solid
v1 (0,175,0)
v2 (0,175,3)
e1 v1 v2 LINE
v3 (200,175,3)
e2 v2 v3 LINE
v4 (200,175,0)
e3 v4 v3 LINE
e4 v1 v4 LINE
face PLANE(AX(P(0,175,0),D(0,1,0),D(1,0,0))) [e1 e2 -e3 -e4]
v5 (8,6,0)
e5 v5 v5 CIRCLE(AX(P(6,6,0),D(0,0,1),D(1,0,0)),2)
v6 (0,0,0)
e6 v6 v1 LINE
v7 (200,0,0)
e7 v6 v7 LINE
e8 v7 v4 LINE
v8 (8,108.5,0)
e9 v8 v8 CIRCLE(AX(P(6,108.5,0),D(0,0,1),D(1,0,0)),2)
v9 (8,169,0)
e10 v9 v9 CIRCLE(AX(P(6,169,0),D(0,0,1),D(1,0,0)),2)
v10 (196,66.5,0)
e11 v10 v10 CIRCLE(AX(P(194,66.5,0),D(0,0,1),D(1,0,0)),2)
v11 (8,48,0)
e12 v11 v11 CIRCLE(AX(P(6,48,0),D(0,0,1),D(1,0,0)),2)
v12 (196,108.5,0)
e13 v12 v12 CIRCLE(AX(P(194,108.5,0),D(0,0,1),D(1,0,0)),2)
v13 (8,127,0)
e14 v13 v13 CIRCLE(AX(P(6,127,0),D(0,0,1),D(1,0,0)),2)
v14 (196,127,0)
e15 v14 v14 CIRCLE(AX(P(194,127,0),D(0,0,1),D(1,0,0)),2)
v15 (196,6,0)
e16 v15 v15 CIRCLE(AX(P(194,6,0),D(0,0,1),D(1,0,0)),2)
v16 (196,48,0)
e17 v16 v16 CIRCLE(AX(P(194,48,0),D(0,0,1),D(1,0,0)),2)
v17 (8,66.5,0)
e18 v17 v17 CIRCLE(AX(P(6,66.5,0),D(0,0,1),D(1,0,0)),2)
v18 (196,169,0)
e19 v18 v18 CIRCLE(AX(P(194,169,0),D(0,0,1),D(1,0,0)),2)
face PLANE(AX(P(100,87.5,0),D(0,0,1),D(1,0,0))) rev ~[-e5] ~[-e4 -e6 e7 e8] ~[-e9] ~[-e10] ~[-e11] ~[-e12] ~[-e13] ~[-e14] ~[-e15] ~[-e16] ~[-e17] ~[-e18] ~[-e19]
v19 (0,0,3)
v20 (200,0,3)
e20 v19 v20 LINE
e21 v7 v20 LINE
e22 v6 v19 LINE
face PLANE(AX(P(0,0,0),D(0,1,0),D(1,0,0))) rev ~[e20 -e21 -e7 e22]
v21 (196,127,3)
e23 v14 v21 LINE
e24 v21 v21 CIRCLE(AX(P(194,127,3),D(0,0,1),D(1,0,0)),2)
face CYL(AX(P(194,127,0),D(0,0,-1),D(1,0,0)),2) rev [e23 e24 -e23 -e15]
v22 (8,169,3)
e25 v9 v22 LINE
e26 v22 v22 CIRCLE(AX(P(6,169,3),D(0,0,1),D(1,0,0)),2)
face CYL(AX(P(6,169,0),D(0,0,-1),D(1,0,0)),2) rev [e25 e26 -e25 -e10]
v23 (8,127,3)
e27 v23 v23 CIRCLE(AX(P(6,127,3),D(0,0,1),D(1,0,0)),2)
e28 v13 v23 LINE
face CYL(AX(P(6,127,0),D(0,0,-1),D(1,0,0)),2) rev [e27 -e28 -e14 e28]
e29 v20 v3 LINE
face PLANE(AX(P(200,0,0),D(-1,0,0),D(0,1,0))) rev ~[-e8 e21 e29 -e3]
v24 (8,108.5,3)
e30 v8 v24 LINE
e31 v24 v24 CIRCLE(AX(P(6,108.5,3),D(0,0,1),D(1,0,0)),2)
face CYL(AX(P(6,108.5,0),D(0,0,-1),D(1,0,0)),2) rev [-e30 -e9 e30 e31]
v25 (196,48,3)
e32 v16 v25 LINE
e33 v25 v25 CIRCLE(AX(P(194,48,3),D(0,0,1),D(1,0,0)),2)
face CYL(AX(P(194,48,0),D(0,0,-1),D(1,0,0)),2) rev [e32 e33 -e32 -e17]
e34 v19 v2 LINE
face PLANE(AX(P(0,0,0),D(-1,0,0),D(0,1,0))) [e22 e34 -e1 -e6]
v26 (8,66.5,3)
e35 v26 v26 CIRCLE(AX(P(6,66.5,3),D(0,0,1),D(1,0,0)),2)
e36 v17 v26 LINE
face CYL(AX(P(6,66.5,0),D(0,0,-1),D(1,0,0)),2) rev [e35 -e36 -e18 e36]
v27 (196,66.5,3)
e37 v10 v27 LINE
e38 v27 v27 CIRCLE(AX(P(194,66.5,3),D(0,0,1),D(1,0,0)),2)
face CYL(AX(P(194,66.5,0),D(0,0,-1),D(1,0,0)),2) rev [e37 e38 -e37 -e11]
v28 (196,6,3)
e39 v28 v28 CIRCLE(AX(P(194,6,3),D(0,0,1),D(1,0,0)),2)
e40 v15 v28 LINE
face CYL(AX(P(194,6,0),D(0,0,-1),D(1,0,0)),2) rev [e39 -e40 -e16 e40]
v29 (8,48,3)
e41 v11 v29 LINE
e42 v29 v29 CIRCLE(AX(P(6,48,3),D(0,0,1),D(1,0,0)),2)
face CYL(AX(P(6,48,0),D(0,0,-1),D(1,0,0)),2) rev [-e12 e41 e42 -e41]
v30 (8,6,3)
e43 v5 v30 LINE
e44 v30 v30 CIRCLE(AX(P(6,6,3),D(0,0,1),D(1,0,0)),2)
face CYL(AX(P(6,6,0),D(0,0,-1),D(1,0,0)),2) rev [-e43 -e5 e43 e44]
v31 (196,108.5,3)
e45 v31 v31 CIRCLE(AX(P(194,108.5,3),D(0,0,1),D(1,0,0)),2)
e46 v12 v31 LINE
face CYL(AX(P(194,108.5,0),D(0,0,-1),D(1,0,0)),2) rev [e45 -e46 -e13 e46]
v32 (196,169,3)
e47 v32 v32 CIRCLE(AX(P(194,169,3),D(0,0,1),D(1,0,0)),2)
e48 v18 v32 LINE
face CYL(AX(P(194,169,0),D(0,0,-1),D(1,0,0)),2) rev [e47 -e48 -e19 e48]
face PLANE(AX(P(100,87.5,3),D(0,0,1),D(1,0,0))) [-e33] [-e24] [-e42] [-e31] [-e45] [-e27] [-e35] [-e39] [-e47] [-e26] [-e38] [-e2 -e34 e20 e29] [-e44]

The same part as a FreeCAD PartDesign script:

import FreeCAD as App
import Part
import Sketcher

V = App.Vector

doc = App.newDocument("Part")
params = doc.addObject("Spreadsheet::Sheet", "Params")
for row, (alias, value) in enumerate([
    ("sketch1_diameter", "4 mm"),
    ("sketch1_width", "200 mm"),
    ("sketch1_height", "175 mm"),
    ("pad1_length", "3 mm"),
], start=1):
    params.set(f"A{row}", alias)
    params.set(f"B{row}", "=" + value)
    params.setAlias(f"B{row}", alias)

body = doc.addObject("PartDesign::Body", "Body")

sketch1 = body.newObject("Sketcher::SketchObject", "Sketch")
sketch1.AttachmentSupport = (doc.getObject("XY_Plane"), [""])
sketch1.MapMode = "FlatFace"
sketch1.addGeometry(Part.LineSegment(V(0, 175, 0), V(0, 0, 0)), False)
sketch1.addGeometry(Part.LineSegment(V(0, 0, 0), V(200, 0, 0)), False)
sketch1.addGeometry(Part.LineSegment(V(200, 0, 0), V(200, 175, 0)), False)
sketch1.addGeometry(Part.LineSegment(V(200, 175, 0), V(0, 175, 0)), False)
sketch1.addGeometry(Part.Circle(V(6, 6, 0), V(0, 0, 1), 2), False)
sketch1.addGeometry(Part.Circle(V(6, 48, 0), V(0, 0, 1), 2), False)
sketch1.addGeometry(Part.Circle(V(6, 66.5, 0), V(0, 0, 1), 2), False)
sketch1.addGeometry(Part.Circle(V(194, 6, 0), V(0, 0, 1), 2), False)
sketch1.addGeometry(Part.Circle(V(194, 48, 0), V(0, 0, 1), 2), False)
sketch1.addGeometry(Part.Circle(V(194, 66.5, 0), V(0, 0, 1), 2), False)
sketch1.addGeometry(Part.Circle(V(6, 108.5, 0), V(0, 0, 1), 2), False)
sketch1.addGeometry(Part.Circle(V(6, 127, 0), V(0, 0, 1), 2), False)
sketch1.addGeometry(Part.Circle(V(6, 169, 0), V(0, 0, 1), 2), False)
sketch1.addGeometry(Part.Circle(V(194, 108.5, 0), V(0, 0, 1), 2), False)
sketch1.addGeometry(Part.Circle(V(194, 127, 0), V(0, 0, 1), 2), False)
sketch1.addGeometry(Part.Circle(V(194, 169, 0), V(0, 0, 1), 2), False)
sketch1.addConstraint(Sketcher.Constraint("Coincident", 0, 2, 1, 1))
sketch1.addConstraint(Sketcher.Constraint("Coincident", 1, 2, 2, 1))
sketch1.addConstraint(Sketcher.Constraint("Coincident", 2, 2, 3, 1))
sketch1.addConstraint(Sketcher.Constraint("Coincident", 3, 2, 0, 1))
sketch1.addConstraint(Sketcher.Constraint("Vertical", 0))
sketch1.addConstraint(Sketcher.Constraint("Horizontal", 1))
sketch1.addConstraint(Sketcher.Constraint("Vertical", 2))
sketch1.addConstraint(Sketcher.Constraint("Horizontal", 3))
sketch1.addConstraint(Sketcher.Constraint("Coincident", 0, 2, -1, 1))
sketch1.addConstraint(Sketcher.Constraint("Equal", 4, 5))
sketch1.addConstraint(Sketcher.Constraint("Equal", 5, 6))
sketch1.addConstraint(Sketcher.Constraint("Equal", 6, 7))
sketch1.addConstraint(Sketcher.Constraint("Equal", 7, 8))
sketch1.addConstraint(Sketcher.Constraint("Equal", 8, 9))
sketch1.addConstraint(Sketcher.Constraint("Equal", 9, 10))
sketch1.addConstraint(Sketcher.Constraint("Equal", 10, 11))
sketch1.addConstraint(Sketcher.Constraint("Equal", 11, 12))
sketch1.addConstraint(Sketcher.Constraint("Equal", 12, 13))
sketch1.addConstraint(Sketcher.Constraint("Equal", 13, 14))
sketch1.addConstraint(Sketcher.Constraint("Equal", 14, 15))
sketch1.addConstraint(Sketcher.Constraint("Horizontal", 4, 3, 7, 3))
sketch1.addConstraint(Sketcher.Constraint("Horizontal", 5, 3, 8, 3))
sketch1.addConstraint(Sketcher.Constraint("Horizontal", 6, 3, 9, 3))
sketch1.addConstraint(Sketcher.Constraint("Horizontal", 10, 3, 13, 3))
sketch1.addConstraint(Sketcher.Constraint("Horizontal", 11, 3, 14, 3))
sketch1.addConstraint(Sketcher.Constraint("Horizontal", 12, 3, 15, 3))
sketch1.addConstraint(Sketcher.Constraint("Vertical", 4, 3, 5, 3))
sketch1.addConstraint(Sketcher.Constraint("Vertical", 5, 3, 6, 3))
sketch1.addConstraint(Sketcher.Constraint("Vertical", 7, 3, 8, 3))
sketch1.addConstraint(Sketcher.Constraint("Vertical", 8, 3, 9, 3))
sketch1.addConstraint(Sketcher.Constraint("Vertical", 6, 3, 10, 3))
sketch1.addConstraint(Sketcher.Constraint("Vertical", 10, 3, 11, 3))
sketch1.addConstraint(Sketcher.Constraint("Vertical", 11, 3, 12, 3))
sketch1.addConstraint(Sketcher.Constraint("Vertical", 9, 3, 13, 3))
sketch1.addConstraint(Sketcher.Constraint("Vertical", 13, 3, 14, 3))
sketch1.addConstraint(Sketcher.Constraint("Vertical", 14, 3, 15, 3))
sketch1.addConstraint(Sketcher.Constraint("Diameter", 4, 4.0))
sketch1.addConstraint(Sketcher.Constraint("DistanceX", 1, 1, 1, 2, 200.0))
sketch1.addConstraint(Sketcher.Constraint("DistanceY", 0, 2, 0, 1, 175.0))
sketch1.addConstraint(Sketcher.Constraint("DistanceX", -1, 1, 4, 3, 6.0))
sketch1.addConstraint(Sketcher.Constraint("DistanceY", -1, 1, 4, 3, 6.0))
sketch1.addConstraint(Sketcher.Constraint("DistanceY", -1, 1, 5, 3, 48.0))
sketch1.addConstraint(Sketcher.Constraint("DistanceX", -1, 1, 7, 3, 194.0))
sketch1.addConstraint(Sketcher.Constraint("DistanceY", -1, 1, 11, 3, 127.0))
sketch1.addConstraint(Sketcher.Constraint("DistanceY", -1, 1, 12, 3, 169.0))
sketch1.addConstraint(Sketcher.Constraint("DistanceY", 6, 3, 10, 3, 42.0))
sketch1.addConstraint(Sketcher.Constraint("DistanceY", -1, 1, 6, 3, 66.5))
sketch1.setExpression("Constraints[36]", "Params.sketch1_diameter")
sketch1.setExpression("Constraints[37]", "Params.sketch1_width")
sketch1.setExpression("Constraints[38]", "Params.sketch1_height")
pad1 = body.newObject("PartDesign::Pad", "Pad")
pad1.Profile = sketch1
pad1.setExpression("Length", "Params.pad1_length")

doc.recompute()
